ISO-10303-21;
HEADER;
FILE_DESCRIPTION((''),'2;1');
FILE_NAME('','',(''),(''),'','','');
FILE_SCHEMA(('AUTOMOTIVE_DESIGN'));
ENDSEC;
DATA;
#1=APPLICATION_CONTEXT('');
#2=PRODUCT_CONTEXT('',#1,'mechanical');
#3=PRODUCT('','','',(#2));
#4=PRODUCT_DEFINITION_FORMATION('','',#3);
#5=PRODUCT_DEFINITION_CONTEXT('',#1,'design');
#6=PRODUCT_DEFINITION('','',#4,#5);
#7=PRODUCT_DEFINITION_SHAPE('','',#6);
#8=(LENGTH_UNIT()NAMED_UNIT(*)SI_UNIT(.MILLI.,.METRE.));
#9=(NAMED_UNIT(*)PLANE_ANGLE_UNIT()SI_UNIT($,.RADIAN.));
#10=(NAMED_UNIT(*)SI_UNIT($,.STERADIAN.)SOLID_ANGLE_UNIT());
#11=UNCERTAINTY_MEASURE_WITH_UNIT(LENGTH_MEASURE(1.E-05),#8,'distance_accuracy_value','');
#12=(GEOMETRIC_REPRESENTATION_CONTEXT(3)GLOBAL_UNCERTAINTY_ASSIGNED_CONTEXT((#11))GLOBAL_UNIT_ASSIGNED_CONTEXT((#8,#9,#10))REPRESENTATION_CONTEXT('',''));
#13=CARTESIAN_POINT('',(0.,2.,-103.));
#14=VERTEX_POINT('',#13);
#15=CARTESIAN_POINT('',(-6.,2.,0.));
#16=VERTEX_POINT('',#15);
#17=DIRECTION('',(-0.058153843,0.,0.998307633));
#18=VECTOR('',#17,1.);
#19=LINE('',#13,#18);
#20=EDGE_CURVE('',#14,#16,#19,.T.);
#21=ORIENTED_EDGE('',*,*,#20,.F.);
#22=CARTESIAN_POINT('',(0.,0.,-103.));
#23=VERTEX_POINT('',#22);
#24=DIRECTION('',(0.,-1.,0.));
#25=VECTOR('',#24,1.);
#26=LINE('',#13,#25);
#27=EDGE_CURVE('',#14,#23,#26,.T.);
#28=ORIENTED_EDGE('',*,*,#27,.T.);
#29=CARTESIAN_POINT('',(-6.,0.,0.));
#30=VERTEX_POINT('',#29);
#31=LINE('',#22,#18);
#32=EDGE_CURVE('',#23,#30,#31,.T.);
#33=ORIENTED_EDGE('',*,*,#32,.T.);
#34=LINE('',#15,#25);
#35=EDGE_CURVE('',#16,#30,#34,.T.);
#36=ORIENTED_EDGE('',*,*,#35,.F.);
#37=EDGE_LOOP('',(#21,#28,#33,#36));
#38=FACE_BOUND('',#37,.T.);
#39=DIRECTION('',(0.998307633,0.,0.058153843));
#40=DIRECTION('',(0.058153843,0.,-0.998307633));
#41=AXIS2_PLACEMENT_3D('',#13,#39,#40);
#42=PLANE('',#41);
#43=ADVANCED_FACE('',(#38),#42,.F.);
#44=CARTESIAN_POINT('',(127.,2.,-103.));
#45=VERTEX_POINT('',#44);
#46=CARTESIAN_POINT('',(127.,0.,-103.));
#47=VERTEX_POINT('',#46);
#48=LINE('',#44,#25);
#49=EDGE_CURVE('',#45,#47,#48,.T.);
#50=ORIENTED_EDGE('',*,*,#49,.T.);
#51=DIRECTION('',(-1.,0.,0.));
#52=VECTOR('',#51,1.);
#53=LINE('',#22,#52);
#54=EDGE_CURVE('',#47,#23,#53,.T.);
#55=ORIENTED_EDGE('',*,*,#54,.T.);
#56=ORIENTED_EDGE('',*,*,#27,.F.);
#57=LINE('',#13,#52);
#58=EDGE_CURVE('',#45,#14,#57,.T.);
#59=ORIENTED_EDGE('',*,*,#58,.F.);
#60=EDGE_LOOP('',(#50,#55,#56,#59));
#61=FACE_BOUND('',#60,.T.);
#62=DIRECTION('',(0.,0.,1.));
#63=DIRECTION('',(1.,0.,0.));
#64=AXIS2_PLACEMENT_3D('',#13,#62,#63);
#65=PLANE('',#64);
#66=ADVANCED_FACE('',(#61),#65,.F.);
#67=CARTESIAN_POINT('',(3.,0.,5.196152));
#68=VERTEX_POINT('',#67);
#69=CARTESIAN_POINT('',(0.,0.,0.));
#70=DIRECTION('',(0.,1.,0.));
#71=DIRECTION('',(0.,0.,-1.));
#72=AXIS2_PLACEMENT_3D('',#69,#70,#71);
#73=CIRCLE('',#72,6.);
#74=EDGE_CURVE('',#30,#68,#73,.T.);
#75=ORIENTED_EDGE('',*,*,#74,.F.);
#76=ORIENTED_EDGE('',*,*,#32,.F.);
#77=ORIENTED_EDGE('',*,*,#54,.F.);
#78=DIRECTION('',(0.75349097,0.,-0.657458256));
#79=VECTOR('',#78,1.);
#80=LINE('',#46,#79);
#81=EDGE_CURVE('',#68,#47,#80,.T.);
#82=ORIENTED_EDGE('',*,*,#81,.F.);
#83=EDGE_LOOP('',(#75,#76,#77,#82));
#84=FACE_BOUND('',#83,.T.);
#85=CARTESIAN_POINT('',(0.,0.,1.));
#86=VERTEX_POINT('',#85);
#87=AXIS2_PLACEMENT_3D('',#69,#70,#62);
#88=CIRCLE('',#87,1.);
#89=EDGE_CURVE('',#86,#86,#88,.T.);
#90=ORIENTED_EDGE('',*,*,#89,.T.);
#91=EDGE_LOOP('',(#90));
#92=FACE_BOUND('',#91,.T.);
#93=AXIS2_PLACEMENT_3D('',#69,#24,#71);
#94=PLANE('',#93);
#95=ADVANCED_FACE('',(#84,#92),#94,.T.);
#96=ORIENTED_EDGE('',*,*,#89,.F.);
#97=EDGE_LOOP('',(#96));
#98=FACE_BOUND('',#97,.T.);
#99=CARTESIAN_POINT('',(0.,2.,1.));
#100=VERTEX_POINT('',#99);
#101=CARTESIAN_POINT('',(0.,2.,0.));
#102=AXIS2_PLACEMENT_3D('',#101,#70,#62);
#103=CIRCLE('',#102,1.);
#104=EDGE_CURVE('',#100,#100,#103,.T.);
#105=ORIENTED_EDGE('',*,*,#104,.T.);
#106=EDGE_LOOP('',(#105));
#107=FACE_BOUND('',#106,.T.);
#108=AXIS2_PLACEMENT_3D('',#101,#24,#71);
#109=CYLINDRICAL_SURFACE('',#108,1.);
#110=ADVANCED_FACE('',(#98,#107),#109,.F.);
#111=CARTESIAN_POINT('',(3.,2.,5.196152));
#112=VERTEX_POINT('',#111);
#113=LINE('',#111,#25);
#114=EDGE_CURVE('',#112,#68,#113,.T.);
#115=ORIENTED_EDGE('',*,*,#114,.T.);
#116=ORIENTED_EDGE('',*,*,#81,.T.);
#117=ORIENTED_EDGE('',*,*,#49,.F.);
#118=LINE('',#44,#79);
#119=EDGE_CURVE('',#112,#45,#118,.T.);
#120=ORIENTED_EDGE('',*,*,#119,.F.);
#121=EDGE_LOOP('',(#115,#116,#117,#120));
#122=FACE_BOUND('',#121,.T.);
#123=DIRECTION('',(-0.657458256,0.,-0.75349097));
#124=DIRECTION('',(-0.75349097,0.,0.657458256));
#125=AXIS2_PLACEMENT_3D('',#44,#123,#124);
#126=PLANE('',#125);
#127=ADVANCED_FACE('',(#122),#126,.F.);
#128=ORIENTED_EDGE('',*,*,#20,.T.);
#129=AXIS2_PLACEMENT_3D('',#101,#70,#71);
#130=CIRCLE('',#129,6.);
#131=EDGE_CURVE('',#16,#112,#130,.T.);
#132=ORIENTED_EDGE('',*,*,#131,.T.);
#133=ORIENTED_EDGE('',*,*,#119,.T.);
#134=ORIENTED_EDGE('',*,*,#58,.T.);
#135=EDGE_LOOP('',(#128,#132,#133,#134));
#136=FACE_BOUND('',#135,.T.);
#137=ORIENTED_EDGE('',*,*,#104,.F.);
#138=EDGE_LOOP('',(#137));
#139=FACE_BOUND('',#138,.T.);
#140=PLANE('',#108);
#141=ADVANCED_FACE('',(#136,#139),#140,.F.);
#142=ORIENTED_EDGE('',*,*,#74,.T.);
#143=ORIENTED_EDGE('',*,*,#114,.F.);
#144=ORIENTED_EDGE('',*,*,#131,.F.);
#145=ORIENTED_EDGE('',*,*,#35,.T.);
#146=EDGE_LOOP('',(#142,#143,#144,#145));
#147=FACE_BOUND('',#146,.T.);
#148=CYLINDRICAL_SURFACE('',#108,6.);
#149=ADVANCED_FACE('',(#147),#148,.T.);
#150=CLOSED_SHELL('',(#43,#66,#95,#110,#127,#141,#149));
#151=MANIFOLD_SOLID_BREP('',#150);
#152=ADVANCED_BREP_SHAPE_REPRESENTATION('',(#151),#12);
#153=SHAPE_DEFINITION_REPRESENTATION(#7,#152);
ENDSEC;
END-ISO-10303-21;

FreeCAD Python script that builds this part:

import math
import FreeCAD as App
import Part
import Sketcher
Q = App.Units.Quantity

doc = App.newDocument("Part")
body = doc.addObject("PartDesign::Body", "Body")

sketch1 = body.newObject("Sketcher::SketchObject", "Sketch")
sketch1.AttachmentSupport = (doc.getObject("XZ_Plane"), [""])
sketch1.MapMode = "FlatFace"
sketch1.addGeometry([
    Part.LineSegment(App.Vector(127, -103, 0), App.Vector(0, -103, 0)),
    Part.LineSegment(App.Vector(0, -103, 0), App.Vector(-6, 0, 0)),
    Part.ArcOfCircle(Part.Circle(App.Vector(0, 0, 0), App.Vector(0, 0, 1), 6), math.radians(60), math.radians(180)),
    Part.LineSegment(App.Vector(3, 5.2, 0), App.Vector(127, -103, 0)),
    Part.Circle(App.Vector(0, 0, 0), App.Vector(0, 0, 1), 1),
], False)
sketch1.addConstraint([
    Sketcher.Constraint("Coincident", 0, 2, 1, 1),
    Sketcher.Constraint("Coincident", 1, 2, 2, 2),
    Sketcher.Constraint("Coincident", 2, 1, 3, 1),
    Sketcher.Constraint("Coincident", 3, 2, 0, 1),
    Sketcher.Constraint("Horizontal", 0),
    Sketcher.Constraint("Coincident", 2, 3, -1, 1),
    Sketcher.Constraint("Coincident", 4, 3, -1, 1),
    Sketcher.Constraint("PointOnObject", 0, 2, -2),
    Sketcher.Constraint("PointOnObject", 1, 2, -1),
    Sketcher.Constraint("Diameter", 4, Q("2 mm")),
    Sketcher.Constraint("Radius", 2, Q("6 mm")),
    Sketcher.Constraint("DistanceX", 0, 2, 0, 1, Q("127 mm")),
    Sketcher.Constraint("DistanceY", 0, 2, -1, 1, Q("103 mm")),
    Sketcher.Constraint("DistanceX", -1, 1, 2, 1, Q("3 mm")),
])
pad1 = body.newObject("PartDesign::Pad", "Pad")
pad1.Profile = sketch1
pad1.Length = 2
pad1.Reversed = True

doc.recompute()
